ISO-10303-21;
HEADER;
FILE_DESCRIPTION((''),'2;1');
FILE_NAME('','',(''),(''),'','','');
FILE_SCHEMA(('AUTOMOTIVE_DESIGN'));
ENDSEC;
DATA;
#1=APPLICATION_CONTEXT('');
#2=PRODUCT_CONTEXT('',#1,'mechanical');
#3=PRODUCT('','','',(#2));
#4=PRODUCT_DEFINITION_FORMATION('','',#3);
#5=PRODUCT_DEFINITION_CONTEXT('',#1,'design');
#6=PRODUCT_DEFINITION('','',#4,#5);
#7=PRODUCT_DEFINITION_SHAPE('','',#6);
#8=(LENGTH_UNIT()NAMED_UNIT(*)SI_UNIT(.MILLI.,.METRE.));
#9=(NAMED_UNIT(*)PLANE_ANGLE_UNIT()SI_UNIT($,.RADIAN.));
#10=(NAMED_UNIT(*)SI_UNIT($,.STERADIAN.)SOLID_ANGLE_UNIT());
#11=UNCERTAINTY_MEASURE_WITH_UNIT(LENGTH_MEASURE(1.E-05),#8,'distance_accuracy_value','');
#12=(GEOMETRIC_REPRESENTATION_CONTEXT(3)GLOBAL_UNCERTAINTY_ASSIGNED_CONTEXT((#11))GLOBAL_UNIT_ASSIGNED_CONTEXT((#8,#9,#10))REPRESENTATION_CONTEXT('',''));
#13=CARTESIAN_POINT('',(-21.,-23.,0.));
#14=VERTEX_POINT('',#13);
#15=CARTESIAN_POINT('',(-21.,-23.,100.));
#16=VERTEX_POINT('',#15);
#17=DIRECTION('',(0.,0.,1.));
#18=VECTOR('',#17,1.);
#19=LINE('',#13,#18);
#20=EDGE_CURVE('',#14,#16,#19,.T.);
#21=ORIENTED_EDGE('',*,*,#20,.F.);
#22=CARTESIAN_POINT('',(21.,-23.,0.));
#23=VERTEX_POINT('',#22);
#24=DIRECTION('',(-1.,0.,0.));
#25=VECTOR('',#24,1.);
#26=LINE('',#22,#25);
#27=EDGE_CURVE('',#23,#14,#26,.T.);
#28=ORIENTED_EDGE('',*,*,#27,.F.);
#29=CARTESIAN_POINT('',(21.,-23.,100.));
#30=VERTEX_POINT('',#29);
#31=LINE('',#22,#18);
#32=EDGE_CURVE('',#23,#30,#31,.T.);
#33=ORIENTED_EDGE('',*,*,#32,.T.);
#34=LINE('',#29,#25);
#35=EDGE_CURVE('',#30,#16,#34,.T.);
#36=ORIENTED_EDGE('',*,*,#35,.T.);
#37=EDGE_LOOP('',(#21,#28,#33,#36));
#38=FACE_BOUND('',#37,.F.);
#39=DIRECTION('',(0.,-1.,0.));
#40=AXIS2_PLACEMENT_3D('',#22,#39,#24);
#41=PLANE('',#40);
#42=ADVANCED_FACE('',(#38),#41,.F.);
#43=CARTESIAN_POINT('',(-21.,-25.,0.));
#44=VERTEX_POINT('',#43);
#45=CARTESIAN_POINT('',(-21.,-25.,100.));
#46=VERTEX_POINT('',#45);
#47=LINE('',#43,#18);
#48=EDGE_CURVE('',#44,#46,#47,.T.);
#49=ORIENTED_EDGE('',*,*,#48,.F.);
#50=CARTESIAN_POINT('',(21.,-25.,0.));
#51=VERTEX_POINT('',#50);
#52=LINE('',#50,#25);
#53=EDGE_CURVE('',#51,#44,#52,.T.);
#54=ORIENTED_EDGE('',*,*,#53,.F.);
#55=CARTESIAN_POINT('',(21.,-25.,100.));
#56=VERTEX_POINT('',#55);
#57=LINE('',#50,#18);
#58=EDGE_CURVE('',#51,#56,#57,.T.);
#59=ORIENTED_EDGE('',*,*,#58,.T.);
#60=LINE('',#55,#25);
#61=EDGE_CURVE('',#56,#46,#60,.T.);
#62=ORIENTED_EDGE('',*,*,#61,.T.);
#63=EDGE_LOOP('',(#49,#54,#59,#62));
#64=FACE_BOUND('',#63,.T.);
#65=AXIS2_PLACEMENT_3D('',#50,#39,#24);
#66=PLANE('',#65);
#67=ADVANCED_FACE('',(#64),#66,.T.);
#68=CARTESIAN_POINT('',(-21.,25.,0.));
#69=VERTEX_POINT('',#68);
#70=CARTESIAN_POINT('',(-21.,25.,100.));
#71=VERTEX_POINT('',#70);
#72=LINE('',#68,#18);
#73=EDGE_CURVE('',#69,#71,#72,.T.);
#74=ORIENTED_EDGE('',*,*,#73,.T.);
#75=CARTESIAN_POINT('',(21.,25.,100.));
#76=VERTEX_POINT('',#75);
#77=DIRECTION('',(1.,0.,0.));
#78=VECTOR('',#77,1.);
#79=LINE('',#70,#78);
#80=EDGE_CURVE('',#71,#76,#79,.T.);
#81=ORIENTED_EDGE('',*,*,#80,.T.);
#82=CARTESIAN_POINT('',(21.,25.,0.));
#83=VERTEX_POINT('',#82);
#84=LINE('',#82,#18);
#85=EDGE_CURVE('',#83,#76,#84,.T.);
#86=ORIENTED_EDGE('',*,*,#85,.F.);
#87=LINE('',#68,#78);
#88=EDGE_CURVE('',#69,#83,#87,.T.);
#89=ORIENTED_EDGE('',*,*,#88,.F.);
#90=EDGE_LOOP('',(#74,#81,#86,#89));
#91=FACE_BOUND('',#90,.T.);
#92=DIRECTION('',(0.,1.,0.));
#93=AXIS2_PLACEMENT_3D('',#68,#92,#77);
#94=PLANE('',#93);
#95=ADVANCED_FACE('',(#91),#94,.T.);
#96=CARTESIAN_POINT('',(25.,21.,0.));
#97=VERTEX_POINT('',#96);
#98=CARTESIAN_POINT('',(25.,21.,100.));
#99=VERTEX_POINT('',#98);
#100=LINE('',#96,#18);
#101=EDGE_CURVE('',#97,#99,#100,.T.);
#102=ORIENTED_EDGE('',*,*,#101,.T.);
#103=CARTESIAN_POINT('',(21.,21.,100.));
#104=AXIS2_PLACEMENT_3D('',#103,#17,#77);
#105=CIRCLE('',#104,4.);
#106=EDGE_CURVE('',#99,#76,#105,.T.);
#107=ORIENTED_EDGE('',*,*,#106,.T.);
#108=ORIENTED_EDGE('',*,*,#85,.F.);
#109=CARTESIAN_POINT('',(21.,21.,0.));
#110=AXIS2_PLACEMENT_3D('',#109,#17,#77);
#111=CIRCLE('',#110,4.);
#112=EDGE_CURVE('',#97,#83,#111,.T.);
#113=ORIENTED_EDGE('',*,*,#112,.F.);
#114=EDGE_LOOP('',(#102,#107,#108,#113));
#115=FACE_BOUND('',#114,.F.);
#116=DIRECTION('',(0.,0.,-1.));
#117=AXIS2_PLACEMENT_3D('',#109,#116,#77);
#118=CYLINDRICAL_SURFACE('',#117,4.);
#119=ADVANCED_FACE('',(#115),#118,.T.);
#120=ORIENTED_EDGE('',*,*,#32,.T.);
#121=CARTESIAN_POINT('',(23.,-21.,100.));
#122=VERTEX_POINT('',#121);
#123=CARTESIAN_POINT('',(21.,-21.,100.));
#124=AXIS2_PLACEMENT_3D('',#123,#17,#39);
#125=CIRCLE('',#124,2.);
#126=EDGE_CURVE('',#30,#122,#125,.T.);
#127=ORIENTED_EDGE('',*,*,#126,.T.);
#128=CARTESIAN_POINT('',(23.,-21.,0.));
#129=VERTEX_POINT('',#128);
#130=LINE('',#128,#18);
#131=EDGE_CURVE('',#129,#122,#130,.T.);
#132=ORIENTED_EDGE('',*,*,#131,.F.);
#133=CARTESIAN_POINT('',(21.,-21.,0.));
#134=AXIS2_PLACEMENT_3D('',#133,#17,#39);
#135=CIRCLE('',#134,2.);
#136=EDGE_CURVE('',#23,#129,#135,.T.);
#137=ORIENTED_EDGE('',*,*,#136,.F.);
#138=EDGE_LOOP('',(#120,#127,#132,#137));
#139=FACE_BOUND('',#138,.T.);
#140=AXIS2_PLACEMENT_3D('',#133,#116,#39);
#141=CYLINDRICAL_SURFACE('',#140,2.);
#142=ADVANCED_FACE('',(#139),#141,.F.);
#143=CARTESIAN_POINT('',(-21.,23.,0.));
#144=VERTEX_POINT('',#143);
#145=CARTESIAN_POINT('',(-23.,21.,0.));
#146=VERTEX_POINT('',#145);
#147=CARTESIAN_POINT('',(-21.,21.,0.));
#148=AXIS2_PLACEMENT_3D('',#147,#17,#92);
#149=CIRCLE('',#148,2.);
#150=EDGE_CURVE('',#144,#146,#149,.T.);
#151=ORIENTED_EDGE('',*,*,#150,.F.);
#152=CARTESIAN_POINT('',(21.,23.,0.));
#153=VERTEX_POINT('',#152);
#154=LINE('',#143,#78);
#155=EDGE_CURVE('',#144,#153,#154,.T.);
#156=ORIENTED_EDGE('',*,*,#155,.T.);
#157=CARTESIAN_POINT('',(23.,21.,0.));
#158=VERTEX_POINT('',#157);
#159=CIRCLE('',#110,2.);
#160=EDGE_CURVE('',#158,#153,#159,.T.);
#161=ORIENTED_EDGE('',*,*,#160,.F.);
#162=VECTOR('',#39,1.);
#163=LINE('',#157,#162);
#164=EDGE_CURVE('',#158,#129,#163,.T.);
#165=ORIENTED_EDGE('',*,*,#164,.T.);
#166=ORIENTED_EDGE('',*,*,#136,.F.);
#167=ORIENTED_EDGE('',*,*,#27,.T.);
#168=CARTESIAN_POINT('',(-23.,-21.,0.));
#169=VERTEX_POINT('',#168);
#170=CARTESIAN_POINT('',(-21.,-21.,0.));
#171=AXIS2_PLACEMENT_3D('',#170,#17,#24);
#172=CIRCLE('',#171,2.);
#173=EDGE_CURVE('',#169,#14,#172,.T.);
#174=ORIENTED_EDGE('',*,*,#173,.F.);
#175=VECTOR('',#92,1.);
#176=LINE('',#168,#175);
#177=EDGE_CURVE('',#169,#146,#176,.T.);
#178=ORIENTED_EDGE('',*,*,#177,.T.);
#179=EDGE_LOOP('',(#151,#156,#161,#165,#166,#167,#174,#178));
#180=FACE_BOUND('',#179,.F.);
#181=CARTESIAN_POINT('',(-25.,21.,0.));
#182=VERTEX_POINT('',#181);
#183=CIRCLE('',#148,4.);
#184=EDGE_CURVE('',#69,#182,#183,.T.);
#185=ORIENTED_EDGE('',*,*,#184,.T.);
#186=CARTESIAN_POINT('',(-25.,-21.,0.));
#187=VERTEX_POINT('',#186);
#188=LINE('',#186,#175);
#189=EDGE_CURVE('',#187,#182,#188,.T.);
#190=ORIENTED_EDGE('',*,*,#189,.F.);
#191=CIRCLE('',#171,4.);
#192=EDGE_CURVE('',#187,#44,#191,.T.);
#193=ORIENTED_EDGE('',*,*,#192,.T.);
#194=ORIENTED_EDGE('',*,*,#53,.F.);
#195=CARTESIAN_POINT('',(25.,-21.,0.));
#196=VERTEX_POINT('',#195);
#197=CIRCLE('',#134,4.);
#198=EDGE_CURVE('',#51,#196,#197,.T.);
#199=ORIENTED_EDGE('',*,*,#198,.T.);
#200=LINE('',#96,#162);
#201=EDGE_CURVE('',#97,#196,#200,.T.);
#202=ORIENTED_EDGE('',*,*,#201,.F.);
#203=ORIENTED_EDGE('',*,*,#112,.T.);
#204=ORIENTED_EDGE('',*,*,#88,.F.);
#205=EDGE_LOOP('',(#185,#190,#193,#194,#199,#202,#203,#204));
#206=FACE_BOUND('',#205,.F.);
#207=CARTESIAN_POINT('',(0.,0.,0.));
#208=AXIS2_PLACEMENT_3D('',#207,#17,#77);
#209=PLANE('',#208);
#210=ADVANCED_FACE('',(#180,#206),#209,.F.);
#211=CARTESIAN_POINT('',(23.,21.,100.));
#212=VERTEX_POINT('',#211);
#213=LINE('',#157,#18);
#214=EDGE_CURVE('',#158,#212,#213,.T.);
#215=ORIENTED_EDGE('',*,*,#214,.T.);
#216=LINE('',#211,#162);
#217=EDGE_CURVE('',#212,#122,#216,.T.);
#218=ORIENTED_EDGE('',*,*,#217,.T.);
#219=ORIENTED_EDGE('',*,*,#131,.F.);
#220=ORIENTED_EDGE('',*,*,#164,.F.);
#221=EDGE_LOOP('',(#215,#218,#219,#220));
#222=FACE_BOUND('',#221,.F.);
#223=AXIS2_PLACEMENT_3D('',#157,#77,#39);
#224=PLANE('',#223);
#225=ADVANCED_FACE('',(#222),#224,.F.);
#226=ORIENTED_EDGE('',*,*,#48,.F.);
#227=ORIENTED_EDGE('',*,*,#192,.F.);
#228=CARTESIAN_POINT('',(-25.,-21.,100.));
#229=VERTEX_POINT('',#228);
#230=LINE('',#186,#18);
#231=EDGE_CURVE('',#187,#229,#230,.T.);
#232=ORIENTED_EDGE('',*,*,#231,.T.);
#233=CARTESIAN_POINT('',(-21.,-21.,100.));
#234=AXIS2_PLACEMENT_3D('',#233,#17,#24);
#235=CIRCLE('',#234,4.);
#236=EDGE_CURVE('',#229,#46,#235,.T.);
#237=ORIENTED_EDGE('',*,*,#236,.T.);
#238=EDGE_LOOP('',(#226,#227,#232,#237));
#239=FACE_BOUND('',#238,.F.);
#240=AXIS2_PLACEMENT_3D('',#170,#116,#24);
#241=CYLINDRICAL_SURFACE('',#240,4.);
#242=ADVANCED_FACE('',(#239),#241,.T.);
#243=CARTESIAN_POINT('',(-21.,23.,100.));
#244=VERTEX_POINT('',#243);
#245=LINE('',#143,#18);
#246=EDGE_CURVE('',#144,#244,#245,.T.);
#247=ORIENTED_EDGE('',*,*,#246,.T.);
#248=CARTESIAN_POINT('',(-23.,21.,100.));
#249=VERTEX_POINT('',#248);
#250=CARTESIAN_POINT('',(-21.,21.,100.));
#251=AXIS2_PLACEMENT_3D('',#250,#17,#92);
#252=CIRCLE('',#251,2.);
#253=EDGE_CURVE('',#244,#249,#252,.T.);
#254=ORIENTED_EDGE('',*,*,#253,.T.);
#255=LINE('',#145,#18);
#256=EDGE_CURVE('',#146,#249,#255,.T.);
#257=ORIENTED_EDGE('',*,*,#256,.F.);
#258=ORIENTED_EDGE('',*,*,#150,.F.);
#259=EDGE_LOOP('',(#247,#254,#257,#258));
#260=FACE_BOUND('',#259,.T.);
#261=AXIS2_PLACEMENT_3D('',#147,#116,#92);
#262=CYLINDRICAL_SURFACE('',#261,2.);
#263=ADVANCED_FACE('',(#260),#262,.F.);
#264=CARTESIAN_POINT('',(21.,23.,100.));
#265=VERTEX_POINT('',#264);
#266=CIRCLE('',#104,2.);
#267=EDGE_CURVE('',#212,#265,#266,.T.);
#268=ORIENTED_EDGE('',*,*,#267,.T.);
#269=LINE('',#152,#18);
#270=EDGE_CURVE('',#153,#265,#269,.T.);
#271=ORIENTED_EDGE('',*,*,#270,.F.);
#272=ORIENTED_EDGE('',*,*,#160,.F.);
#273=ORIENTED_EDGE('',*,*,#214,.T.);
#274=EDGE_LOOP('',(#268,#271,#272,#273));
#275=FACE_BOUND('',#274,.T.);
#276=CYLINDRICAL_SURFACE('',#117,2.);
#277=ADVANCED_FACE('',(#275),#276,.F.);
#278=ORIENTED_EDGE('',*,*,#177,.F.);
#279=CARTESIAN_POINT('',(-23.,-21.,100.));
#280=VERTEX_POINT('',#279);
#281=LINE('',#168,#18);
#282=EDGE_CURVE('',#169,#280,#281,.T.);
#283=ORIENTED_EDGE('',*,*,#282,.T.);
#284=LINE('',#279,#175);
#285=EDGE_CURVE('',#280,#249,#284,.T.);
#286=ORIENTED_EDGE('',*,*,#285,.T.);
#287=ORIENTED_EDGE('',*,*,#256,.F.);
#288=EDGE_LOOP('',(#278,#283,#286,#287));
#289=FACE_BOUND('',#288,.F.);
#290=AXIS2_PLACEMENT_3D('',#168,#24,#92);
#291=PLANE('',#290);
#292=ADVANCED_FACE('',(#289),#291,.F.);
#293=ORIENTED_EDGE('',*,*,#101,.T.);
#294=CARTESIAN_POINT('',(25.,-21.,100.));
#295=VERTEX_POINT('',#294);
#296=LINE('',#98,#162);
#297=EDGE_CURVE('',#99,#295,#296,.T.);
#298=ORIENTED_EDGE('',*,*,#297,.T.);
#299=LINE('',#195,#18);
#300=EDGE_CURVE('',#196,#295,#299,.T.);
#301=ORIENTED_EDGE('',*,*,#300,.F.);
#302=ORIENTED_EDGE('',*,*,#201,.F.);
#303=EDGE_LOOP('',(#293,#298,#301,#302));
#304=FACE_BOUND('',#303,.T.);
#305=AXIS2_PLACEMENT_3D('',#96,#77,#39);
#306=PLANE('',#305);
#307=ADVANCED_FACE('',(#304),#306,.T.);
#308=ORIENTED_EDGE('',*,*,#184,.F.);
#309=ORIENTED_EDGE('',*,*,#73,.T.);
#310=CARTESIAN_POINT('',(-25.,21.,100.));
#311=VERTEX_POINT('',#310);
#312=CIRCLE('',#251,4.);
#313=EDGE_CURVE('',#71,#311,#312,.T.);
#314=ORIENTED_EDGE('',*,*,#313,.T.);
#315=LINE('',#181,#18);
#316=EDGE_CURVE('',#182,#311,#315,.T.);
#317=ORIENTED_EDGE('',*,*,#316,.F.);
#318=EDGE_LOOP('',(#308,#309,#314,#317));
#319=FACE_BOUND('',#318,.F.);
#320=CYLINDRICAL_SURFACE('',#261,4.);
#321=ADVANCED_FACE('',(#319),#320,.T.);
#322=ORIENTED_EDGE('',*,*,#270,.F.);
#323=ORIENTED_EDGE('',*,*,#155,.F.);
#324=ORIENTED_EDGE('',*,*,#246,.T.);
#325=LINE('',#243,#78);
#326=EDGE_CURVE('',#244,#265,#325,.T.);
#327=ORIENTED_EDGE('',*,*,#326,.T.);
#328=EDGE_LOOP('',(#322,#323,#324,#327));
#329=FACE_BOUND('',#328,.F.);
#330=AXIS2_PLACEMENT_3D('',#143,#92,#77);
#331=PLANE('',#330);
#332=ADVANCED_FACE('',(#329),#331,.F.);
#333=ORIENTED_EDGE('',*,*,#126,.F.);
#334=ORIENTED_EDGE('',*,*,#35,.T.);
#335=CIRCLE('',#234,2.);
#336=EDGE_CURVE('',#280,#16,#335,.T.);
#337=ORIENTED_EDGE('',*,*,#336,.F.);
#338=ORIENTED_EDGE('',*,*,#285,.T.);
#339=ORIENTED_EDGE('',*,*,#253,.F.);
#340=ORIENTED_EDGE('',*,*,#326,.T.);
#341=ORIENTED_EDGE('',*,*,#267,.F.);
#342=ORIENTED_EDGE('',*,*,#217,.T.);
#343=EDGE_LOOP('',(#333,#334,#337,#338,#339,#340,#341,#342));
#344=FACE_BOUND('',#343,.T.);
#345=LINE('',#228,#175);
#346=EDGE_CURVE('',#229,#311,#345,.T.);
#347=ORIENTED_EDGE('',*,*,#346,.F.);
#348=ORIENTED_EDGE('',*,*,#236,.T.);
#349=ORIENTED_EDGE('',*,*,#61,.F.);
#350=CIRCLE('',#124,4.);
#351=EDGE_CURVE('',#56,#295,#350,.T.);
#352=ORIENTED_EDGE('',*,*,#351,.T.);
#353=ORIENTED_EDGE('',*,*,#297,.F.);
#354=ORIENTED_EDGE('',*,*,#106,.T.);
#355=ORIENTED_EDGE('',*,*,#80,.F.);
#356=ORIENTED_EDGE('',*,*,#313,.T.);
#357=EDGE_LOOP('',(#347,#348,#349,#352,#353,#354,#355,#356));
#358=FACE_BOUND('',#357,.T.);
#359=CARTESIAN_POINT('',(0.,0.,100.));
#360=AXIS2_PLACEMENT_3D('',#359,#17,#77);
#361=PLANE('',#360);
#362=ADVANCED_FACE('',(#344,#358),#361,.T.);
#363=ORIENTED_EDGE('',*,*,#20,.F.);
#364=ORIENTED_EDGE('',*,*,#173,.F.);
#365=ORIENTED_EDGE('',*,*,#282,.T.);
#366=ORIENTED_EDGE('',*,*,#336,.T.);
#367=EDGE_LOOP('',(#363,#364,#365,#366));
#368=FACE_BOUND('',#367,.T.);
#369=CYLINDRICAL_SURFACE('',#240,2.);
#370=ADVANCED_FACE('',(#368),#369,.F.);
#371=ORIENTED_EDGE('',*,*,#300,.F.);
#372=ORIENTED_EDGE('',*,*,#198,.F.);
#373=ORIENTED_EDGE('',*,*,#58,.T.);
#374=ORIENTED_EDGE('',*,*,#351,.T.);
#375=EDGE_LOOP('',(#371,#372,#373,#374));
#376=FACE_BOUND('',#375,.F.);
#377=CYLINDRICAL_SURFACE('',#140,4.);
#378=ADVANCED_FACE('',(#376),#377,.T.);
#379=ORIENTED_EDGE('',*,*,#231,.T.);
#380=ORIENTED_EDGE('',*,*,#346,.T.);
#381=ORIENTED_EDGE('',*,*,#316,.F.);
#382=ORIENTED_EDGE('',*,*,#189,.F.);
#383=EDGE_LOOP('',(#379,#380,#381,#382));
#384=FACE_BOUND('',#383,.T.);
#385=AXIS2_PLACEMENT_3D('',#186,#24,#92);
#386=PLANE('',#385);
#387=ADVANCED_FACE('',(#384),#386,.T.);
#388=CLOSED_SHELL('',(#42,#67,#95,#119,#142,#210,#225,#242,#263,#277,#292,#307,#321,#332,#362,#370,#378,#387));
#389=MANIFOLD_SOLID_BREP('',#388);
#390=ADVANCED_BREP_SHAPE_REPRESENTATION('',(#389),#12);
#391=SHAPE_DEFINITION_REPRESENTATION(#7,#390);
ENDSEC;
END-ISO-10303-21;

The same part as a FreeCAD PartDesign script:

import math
import FreeCAD as App
import Part
import Sketcher

V = App.Vector

doc = App.newDocument("Part")
body = doc.addObject("PartDesign::Body", "Body")

# Sketch on XY plane
sketch1 = body.newObject("Sketcher::SketchObject", "Sketch")
sketch1.AttachmentSupport = (doc.getObject("XY_Plane"), [""])
sketch1.MapMode = "FlatFace"
sketch1.addGeometry([
    Part.LineSegment(V(-25, 21, 0), V(-25, -21, 0)),  # 0
    Part.ArcOfCircle(Part.Circle(V(-21, -21, 0), V(0, 0, 1), 4), math.radians(180), math.radians(270)),  # 1
    Part.LineSegment(V(-21, -25, 0), V(21, -25, 0)),  # 2
    Part.ArcOfCircle(Part.Circle(V(21, -21, 0), V(0, 0, 1), 4), math.radians(-90), math.radians(0)),  # 3
    Part.LineSegment(V(25, -21, 0), V(25, 21, 0)),  # 4
    Part.ArcOfCircle(Part.Circle(V(21, 21, 0), V(0, 0, 1), 4), math.radians(0), math.radians(90)),  # 5
    Part.LineSegment(V(21, 25, 0), V(-21, 25, 0)),  # 6
    Part.ArcOfCircle(Part.Circle(V(-21, 21, 0), V(0, 0, 1), 4), math.radians(90), math.radians(180)),  # 7
    Part.ArcOfCircle(Part.Circle(V(-21, 21, 0), V(0, 0, 1), 2), math.radians(90), math.radians(180)),  # 8
    Part.LineSegment(V(-21, 23, 0), V(21, 23, 0)),  # 9
    Part.ArcOfCircle(Part.Circle(V(21, 21, 0), V(0, 0, 1), 2), math.radians(0), math.radians(90)),  # 10
    Part.LineSegment(V(23, 21, 0), V(23, -21, 0)),  # 11
    Part.ArcOfCircle(Part.Circle(V(21, -21, 0), V(0, 0, 1), 2), math.radians(-90), math.radians(0)),  # 12
    Part.LineSegment(V(21, -23, 0), V(-21, -23, 0)),  # 13
    Part.ArcOfCircle(Part.Circle(V(-21, -21, 0), V(0, 0, 1), 2), math.radians(180), math.radians(270)),  # 14
    Part.LineSegment(V(-23, -21, 0), V(-23, 21, 0)),  # 15
], False)
sketch1.addConstraint([
    Sketcher.Constraint("Tangent", 0, 2, 1, 1),
    Sketcher.Constraint("Tangent", 1, 2, 2, 1),
    Sketcher.Constraint("Tangent", 2, 2, 3, 1),
    Sketcher.Constraint("Tangent", 3, 2, 4, 1),
    Sketcher.Constraint("Tangent", 4, 2, 5, 1),
    Sketcher.Constraint("Tangent", 5, 2, 6, 1),
    Sketcher.Constraint("Tangent", 6, 2, 7, 1),
    Sketcher.Constraint("Tangent", 7, 2, 0, 1),
    Sketcher.Constraint("Tangent", 8, 1, 9, 1),
    Sketcher.Constraint("Tangent", 9, 2, 10, 2),
    Sketcher.Constraint("Tangent", 10, 1, 11, 1),
    Sketcher.Constraint("Tangent", 11, 2, 12, 2),
    Sketcher.Constraint("Tangent", 12, 1, 13, 1),
    Sketcher.Constraint("Tangent", 13, 2, 14, 2),
    Sketcher.Constraint("Tangent", 14, 1, 15, 1),
    Sketcher.Constraint("Tangent", 15, 2, 8, 2),
    Sketcher.Constraint("Vertical", 0),
    Sketcher.Constraint("Horizontal", 2),
    Sketcher.Constraint("Vertical", 4),
    Sketcher.Constraint("Horizontal", 6),
    Sketcher.Constraint("Horizontal", 9),
    Sketcher.Constraint("Vertical", 11),
    Sketcher.Constraint("Horizontal", 13),
    Sketcher.Constraint("Vertical", 15),
    Sketcher.Constraint("Coincident", 8, 3, 7, 3),
    Sketcher.Constraint("Coincident", 10, 3, 5, 3),
    Sketcher.Constraint("Coincident", 12, 3, 3, 3),
    Sketcher.Constraint("Equal", 1, 3),
    Sketcher.Constraint("Equal", 3, 5),
    Sketcher.Constraint("Equal", 5, 7),
    Sketcher.Constraint("Equal", 12, 14),
    Sketcher.Constraint("Symmetric", 1, 3, 5, 3, -1, 1),
    Sketcher.Constraint("Equal", 13, 0),
    Sketcher.Constraint("Radius", 1, 4.0),
    Sketcher.Constraint("Radius", 8, 2.0),
    Sketcher.Constraint("DistanceX", 0, 2, -1, 1, 25.0),
])
pad1 = body.newObject("PartDesign::Pad", "Pad")
pad1.Profile = sketch1
pad1.Length = 100

doc.recompute()
